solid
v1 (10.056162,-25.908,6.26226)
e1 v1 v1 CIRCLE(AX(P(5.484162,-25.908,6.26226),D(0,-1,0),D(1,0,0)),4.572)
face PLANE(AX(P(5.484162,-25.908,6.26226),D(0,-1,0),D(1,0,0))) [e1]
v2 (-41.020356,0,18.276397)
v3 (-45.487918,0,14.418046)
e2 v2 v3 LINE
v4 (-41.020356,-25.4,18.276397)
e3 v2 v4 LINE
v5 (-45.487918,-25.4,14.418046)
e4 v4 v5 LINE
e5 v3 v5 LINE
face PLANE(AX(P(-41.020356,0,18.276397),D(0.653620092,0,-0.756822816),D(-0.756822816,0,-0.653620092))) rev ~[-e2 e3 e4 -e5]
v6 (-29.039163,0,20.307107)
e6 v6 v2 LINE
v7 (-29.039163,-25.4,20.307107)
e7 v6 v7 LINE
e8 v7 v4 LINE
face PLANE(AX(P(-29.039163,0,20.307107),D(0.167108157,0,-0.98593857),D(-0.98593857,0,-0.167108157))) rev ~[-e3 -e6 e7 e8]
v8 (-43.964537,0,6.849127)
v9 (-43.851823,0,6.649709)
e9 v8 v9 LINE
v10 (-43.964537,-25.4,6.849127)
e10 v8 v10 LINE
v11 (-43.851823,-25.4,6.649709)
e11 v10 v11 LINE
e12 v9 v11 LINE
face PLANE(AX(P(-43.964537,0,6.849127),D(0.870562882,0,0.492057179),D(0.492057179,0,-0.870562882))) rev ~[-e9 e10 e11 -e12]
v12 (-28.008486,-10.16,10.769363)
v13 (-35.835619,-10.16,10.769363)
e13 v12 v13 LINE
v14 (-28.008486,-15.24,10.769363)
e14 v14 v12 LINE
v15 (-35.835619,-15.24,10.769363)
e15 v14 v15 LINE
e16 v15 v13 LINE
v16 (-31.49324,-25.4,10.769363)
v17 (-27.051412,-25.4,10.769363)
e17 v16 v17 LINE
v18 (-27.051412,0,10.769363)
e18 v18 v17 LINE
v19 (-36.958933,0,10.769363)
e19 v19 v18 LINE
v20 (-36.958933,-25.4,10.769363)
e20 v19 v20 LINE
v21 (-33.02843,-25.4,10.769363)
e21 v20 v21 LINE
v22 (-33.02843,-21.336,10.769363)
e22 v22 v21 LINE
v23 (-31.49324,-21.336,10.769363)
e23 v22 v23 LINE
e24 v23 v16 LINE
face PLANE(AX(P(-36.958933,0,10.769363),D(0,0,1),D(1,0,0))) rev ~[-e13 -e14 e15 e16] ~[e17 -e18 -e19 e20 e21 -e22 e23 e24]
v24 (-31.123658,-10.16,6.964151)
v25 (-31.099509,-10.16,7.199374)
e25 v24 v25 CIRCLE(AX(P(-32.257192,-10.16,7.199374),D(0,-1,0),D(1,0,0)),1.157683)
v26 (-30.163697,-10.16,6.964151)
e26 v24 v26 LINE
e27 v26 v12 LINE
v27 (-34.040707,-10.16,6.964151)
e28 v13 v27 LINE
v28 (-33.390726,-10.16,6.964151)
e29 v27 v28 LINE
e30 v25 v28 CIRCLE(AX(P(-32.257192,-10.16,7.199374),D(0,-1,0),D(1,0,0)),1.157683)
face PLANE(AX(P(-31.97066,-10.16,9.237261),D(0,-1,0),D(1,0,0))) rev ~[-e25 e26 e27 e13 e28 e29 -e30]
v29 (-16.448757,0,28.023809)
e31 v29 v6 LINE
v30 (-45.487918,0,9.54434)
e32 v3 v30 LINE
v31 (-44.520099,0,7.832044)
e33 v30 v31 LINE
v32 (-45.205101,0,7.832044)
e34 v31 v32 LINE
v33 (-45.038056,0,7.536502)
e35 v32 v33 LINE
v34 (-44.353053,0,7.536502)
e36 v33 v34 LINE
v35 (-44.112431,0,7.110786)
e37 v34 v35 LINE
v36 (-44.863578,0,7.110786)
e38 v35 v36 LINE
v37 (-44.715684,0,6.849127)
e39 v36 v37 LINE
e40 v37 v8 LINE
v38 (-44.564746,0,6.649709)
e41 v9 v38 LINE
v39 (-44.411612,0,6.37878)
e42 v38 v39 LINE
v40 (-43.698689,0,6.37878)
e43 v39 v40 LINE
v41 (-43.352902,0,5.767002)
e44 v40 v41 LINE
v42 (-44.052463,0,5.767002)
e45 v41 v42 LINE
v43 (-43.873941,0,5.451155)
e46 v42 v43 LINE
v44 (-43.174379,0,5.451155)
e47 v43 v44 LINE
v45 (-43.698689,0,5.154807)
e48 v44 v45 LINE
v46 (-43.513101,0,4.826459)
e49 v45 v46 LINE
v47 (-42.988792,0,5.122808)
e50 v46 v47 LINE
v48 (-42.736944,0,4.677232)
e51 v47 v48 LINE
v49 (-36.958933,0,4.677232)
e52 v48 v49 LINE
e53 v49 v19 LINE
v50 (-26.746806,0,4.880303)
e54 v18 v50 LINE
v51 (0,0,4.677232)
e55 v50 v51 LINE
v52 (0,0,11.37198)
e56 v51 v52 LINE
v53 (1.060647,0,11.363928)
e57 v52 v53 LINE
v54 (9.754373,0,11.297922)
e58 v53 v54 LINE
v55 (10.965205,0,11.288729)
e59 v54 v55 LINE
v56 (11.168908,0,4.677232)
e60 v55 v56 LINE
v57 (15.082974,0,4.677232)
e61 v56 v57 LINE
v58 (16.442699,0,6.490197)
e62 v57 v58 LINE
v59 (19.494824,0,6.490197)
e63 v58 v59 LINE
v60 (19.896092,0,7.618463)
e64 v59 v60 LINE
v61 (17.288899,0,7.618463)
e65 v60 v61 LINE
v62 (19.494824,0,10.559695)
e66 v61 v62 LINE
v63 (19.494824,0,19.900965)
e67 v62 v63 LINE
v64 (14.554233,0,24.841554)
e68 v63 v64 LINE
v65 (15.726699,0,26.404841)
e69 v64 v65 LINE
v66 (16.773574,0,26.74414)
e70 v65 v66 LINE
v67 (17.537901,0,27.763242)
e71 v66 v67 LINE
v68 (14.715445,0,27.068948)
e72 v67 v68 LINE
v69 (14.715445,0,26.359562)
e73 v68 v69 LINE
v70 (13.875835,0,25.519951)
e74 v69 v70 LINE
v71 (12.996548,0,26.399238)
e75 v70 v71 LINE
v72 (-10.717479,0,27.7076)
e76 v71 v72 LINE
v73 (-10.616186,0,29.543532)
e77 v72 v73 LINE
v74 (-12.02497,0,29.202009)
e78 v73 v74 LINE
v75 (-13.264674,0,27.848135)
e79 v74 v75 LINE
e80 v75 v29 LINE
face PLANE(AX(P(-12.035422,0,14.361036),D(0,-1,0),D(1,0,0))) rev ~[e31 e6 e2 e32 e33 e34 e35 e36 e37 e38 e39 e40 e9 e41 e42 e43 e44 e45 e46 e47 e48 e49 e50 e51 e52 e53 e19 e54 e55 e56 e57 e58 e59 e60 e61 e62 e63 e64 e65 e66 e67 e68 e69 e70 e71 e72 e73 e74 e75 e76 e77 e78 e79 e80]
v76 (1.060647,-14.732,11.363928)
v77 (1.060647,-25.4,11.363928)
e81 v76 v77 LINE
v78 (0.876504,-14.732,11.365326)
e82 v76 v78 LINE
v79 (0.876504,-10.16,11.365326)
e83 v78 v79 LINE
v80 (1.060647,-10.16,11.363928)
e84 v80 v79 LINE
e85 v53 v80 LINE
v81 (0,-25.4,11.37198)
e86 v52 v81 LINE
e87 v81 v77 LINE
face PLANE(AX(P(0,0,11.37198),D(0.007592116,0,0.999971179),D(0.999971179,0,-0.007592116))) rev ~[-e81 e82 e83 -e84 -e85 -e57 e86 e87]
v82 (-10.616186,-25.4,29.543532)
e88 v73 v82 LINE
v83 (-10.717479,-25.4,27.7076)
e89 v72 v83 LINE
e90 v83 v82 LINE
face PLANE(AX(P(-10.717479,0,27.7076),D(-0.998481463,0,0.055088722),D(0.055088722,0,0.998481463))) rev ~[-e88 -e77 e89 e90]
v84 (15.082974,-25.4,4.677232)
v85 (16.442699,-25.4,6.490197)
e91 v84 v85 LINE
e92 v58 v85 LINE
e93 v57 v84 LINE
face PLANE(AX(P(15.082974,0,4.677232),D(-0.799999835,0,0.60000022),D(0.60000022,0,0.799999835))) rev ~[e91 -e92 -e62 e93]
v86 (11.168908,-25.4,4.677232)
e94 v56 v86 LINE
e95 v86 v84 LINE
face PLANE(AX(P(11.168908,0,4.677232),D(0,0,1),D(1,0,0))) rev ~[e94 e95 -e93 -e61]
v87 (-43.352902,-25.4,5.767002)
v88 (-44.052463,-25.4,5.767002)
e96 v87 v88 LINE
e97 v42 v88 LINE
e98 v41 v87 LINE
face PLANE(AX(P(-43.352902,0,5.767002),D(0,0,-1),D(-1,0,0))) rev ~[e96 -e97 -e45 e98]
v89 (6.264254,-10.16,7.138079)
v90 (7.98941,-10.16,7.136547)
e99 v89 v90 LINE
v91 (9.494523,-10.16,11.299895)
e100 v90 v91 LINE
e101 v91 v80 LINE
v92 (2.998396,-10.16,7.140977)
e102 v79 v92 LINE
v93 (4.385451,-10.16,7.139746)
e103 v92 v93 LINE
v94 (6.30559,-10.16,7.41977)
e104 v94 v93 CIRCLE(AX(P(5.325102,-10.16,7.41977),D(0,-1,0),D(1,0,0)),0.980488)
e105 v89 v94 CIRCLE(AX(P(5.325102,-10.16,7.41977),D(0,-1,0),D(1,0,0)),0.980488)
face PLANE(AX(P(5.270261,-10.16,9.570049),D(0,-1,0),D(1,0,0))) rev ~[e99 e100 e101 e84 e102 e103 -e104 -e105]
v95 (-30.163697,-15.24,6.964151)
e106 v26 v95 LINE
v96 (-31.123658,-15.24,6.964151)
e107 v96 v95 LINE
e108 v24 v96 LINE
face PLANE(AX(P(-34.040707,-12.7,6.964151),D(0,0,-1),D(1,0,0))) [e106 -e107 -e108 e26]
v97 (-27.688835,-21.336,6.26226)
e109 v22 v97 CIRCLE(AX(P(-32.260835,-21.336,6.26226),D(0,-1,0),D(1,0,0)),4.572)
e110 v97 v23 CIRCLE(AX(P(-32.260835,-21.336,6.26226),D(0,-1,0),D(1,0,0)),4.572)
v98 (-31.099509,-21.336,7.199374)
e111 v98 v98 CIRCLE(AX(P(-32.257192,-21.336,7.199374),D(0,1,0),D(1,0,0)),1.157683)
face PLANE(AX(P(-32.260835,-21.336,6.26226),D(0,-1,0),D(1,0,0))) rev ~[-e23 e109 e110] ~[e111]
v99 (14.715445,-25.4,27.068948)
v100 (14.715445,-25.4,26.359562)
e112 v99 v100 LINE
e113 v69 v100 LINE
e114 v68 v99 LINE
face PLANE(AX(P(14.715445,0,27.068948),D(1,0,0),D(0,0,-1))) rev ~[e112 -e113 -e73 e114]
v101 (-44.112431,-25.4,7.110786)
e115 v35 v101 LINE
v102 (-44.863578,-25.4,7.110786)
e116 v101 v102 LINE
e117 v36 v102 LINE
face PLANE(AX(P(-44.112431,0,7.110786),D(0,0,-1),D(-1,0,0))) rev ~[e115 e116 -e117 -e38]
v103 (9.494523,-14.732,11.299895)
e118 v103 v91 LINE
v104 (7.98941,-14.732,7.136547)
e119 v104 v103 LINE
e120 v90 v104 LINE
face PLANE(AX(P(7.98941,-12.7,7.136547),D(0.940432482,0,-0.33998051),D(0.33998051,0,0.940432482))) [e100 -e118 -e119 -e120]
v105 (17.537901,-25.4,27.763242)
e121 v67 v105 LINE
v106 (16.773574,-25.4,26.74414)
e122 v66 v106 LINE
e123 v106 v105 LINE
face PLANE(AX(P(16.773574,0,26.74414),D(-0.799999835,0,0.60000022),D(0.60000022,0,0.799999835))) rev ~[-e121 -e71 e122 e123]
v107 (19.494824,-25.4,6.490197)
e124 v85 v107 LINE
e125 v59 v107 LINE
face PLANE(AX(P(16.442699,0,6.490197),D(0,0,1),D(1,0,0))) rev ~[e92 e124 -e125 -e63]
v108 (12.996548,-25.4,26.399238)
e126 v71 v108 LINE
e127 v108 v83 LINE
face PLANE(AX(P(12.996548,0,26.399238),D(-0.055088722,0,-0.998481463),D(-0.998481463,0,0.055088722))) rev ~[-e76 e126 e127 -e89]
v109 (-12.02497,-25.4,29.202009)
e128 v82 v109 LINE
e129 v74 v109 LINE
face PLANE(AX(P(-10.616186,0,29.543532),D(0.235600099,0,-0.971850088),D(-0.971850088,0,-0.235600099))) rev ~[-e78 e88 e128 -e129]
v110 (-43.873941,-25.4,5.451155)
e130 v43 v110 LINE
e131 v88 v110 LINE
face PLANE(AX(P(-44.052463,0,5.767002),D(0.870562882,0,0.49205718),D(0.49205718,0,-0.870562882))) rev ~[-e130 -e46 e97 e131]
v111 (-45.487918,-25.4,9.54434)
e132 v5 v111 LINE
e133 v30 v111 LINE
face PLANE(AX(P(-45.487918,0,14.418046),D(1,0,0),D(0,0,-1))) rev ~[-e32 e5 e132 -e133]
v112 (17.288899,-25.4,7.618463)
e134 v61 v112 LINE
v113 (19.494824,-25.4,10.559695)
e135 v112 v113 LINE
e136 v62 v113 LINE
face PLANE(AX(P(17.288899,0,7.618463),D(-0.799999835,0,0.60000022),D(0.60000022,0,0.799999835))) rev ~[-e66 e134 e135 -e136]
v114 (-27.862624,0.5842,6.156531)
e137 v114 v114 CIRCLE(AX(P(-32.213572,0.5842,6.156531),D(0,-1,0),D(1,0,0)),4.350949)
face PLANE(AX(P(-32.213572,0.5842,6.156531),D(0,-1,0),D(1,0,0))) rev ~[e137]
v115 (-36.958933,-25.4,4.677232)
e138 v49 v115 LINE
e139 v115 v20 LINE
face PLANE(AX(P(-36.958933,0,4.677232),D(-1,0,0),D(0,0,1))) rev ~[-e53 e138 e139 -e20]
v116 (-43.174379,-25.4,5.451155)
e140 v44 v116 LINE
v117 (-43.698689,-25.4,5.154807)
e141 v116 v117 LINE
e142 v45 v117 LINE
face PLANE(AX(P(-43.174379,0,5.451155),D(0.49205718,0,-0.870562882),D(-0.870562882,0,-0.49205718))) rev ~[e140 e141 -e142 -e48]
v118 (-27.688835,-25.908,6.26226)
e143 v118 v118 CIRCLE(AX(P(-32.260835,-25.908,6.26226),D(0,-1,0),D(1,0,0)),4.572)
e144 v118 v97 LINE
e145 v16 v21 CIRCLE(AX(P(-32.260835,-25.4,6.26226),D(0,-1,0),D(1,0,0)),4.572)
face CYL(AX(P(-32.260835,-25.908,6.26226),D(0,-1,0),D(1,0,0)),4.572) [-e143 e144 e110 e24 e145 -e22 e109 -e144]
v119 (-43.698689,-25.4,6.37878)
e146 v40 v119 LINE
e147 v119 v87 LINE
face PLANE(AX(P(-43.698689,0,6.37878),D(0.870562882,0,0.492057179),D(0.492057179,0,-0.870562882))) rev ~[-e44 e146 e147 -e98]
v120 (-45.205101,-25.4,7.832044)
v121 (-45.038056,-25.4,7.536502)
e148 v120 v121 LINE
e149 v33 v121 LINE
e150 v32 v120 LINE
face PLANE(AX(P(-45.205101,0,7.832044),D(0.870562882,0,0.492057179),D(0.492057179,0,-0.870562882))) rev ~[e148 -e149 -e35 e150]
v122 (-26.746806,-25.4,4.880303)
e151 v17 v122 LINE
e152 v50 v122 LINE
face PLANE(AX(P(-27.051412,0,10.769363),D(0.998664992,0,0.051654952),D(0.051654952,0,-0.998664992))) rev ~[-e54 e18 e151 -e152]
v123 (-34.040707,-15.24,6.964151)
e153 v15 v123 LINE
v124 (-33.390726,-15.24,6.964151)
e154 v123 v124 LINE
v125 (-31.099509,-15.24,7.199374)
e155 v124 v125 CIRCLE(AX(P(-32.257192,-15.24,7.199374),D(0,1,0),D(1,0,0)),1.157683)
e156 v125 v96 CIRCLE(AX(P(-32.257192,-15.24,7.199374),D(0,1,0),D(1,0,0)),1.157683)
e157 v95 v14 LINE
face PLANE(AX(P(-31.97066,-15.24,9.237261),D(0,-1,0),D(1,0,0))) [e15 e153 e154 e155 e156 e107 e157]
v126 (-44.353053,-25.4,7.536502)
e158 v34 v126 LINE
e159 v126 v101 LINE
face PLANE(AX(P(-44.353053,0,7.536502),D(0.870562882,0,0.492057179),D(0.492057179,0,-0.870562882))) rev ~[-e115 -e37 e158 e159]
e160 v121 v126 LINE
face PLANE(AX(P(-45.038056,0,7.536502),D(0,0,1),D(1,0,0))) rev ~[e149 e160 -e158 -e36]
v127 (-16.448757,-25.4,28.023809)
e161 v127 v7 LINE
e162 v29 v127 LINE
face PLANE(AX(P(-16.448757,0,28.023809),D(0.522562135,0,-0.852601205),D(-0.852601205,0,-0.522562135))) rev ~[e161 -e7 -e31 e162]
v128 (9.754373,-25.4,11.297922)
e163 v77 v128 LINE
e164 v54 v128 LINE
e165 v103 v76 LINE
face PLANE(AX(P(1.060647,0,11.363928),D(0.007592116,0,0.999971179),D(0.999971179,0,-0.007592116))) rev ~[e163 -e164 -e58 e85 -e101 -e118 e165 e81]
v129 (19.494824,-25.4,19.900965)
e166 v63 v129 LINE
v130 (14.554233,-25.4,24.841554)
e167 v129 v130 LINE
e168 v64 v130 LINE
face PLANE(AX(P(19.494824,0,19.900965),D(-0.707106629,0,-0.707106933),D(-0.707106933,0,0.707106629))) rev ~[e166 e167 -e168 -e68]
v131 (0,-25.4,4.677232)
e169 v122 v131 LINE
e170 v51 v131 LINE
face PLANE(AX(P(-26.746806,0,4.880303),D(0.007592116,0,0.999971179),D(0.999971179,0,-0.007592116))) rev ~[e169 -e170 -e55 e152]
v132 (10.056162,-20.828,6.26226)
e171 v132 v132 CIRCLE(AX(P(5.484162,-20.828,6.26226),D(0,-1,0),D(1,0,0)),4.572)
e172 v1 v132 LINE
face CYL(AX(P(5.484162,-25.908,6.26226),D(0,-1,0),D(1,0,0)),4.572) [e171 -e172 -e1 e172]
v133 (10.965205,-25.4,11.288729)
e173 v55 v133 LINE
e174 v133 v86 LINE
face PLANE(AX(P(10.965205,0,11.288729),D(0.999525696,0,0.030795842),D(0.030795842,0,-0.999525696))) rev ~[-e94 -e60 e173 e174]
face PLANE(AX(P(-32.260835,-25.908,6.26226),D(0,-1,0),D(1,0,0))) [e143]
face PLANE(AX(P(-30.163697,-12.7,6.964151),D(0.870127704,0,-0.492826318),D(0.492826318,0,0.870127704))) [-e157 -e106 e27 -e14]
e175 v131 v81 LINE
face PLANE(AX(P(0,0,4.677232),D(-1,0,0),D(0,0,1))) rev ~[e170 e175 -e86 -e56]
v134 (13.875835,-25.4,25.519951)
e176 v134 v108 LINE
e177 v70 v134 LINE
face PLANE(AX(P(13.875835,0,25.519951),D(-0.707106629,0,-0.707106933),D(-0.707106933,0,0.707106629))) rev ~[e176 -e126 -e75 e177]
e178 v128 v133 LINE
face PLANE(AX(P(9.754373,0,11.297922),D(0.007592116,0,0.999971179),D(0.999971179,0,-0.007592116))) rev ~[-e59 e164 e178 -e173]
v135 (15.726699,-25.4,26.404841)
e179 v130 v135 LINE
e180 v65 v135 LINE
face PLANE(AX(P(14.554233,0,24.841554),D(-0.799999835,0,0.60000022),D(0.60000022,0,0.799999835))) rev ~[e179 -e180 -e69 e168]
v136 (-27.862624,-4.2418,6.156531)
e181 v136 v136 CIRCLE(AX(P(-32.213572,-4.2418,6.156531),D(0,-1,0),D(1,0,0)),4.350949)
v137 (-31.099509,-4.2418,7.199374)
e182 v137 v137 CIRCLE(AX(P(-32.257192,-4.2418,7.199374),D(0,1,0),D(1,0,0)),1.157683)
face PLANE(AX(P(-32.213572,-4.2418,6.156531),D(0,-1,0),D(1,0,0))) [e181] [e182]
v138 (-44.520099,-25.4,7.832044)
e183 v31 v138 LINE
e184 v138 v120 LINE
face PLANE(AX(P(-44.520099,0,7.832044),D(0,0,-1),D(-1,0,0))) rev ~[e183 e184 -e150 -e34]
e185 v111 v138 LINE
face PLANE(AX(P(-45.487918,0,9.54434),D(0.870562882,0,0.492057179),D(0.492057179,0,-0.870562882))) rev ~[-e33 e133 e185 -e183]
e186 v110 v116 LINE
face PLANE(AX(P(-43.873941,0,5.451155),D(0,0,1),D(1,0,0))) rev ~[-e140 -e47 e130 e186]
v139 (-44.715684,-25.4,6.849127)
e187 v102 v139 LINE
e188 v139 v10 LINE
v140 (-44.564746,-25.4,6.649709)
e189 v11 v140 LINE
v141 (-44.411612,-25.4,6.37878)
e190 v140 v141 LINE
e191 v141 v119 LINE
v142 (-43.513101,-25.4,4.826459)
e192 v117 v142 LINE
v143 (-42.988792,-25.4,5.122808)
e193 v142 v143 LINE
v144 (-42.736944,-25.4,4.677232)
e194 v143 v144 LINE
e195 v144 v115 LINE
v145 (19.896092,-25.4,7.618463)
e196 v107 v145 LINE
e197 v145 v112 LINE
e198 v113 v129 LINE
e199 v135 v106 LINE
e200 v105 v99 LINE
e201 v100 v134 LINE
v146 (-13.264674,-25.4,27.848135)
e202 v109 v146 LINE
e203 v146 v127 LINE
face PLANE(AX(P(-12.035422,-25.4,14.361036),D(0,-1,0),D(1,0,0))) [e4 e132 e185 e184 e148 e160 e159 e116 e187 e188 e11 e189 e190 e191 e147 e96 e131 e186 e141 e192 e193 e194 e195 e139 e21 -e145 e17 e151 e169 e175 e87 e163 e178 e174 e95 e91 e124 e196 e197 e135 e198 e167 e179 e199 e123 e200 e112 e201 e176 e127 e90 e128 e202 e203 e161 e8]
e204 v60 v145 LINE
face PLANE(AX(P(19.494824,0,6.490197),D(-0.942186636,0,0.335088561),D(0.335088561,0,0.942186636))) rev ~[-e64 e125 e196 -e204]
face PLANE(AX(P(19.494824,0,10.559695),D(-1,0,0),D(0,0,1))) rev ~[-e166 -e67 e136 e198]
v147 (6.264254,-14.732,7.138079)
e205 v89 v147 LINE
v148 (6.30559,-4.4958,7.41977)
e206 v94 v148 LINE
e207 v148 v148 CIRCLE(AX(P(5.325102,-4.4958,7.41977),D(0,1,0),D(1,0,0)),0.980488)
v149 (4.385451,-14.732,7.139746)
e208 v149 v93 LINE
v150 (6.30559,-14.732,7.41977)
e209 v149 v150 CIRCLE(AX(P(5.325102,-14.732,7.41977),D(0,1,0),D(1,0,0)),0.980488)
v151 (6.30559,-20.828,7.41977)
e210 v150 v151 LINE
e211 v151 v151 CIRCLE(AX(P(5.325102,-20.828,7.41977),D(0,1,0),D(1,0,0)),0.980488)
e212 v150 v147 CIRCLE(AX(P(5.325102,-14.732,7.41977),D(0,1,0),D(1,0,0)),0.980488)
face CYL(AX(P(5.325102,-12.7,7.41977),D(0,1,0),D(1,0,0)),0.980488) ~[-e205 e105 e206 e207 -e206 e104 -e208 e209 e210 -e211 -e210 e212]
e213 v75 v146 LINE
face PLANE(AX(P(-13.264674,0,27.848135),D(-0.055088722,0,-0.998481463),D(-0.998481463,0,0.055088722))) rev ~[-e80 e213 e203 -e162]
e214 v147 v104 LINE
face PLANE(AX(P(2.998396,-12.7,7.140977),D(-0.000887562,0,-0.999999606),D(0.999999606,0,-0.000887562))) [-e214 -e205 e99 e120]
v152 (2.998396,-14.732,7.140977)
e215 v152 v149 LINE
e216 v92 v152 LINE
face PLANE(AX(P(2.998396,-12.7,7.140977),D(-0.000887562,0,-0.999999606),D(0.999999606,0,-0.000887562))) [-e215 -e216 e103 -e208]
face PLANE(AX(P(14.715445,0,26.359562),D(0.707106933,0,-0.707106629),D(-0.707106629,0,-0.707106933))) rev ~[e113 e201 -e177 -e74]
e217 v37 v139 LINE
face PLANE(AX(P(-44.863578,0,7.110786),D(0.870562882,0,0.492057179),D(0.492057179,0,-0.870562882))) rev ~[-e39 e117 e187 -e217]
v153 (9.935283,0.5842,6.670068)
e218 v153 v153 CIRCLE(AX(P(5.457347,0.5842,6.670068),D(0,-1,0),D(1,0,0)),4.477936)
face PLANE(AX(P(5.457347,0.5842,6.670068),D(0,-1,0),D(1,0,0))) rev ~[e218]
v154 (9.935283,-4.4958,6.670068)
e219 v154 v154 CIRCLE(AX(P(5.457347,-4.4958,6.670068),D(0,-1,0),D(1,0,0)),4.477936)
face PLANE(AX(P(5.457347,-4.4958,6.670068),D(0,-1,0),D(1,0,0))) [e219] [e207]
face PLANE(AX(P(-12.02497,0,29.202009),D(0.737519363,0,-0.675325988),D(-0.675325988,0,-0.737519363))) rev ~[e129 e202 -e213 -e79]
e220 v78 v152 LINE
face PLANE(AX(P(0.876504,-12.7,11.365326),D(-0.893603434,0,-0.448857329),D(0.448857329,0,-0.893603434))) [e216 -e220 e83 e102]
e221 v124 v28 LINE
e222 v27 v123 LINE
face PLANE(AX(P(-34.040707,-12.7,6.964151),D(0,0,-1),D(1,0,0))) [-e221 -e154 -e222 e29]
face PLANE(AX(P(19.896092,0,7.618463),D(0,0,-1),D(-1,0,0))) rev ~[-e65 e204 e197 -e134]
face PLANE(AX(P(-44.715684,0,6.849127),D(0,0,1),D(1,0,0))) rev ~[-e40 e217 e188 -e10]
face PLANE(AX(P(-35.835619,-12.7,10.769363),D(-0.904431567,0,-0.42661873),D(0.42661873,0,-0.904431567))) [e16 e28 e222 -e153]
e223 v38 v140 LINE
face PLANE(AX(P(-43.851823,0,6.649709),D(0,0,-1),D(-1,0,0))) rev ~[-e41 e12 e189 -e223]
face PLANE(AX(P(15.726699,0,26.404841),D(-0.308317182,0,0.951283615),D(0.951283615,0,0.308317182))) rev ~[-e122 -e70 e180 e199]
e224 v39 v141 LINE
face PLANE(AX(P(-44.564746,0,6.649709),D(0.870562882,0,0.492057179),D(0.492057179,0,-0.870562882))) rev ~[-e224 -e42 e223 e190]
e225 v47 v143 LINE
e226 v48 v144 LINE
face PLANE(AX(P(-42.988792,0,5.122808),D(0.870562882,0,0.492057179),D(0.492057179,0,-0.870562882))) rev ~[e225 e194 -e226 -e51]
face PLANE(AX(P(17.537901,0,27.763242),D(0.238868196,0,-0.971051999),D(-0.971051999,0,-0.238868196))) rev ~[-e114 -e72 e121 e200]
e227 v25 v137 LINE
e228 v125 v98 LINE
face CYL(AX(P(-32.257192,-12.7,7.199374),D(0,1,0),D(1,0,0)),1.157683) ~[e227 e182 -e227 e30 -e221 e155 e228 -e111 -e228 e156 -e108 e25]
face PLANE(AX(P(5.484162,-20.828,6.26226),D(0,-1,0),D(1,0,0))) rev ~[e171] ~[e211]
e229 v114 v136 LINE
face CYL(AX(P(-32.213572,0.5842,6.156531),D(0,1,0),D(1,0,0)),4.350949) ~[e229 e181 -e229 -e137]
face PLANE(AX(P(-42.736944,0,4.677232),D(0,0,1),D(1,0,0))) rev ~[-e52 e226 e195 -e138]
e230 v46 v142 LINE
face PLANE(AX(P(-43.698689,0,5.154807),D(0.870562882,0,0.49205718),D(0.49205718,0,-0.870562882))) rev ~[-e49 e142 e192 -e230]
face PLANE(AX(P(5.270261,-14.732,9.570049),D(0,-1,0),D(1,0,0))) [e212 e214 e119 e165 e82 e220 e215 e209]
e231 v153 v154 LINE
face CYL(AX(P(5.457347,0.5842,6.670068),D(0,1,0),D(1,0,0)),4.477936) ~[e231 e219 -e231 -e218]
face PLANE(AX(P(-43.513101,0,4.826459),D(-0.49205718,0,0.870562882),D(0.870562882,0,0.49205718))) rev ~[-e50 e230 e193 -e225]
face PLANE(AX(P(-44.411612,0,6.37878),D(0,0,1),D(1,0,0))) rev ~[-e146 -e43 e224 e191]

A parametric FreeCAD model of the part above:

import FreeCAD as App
import Part
import Sketcher

V = App.Vector
Q = App.Units.Quantity


def add_polygon(sketch, points):
    """Adds a closed chain of lines whose ends are joined by coincident constraints."""
    first, n = sketch.GeometryCount, len(points)
    for a, b in zip(points, points[1:] + points[:1]):
        sketch.addGeometry(Part.LineSegment(App.Vector(*a, 0), App.Vector(*b, 0)), False)
    for i in range(n):
        sketch.addConstraint(Sketcher.Constraint("Coincident", first + i, 2, first + (i + 1) % n, 1))

doc = App.newDocument("Part")
params = doc.addObject("Spreadsheet::Sheet", "Params")
for row, (alias, value) in enumerate([
    ("pad1_length", "1 in"),
    ("pad2_length", "0.1 in"),
    ("pad2_length2", "0.1 in"),
    ("pad3_length", "0.08 in"),
    ("pad3_length2", "0.1 in"),
    ("pad4_length", "0.5 in"),
    ("pad4_length2", "0.5 in"),
    ("pad5_length", "0.5 in"),
    ("pad5_length2", "0.5 in"),
    ("sketch6_diameter", "0.36 in"),
    ("pad6_length", "0.18 in"),
    ("sketch7_diameter", "0.36 in"),
    ("pad7_length", "0.2 in"),
    ("pad8_length", "0.2 in"),
    ("pad9_length", "0.19 in"),
    ("pad10_length", "1 in"),
    ("pad11_length", "1 in"),
], start=1):
    params.set(f"A{row}", alias)
    params.set(f"B{row}", "=" + value)
    params.setAlias(f"B{row}", alias)

body = doc.addObject("PartDesign::Body", "Body")

# Sketch on XZ plane
sketch1 = body.newObject("Sketcher::SketchObject", "Sketch")
sketch1.AttachmentSupport = (doc.getObject("XZ_Plane"), [""])
sketch1.MapMode = "FlatFace"
add_polygon(sketch1, [(-42.736944, 4.677232), (-36.958933, 4.677232), (-36.958933, 10.769363), (-27.051412, 10.769363), (-26.746806, 4.880303), (0, 4.677232), (0, 11.37198), (1.060647, 11.363928), (9.754373, 11.297922), (10.965205, 11.288729), (11.168908, 4.677232), (15.082974, 4.677232), (16.442699, 6.490197), (19.494824, 6.490197), (19.896092, 7.618463), (17.288899, 7.618463), (19.494824, 10.559695), (19.494824, 19.900965), (14.554233, 24.841554), (15.726699, 26.404841), (16.773574, 26.74414), (17.537901, 27.763242), (14.715445, 27.068948), (14.715445, 26.359562), (13.875835, 25.519951), (12.996548, 26.399238), (-10.717479, 27.7076), (-10.616186, 29.543532), (-12.02497, 29.202009), (-13.264674, 27.848135), (-16.448757, 28.023809), (-29.039163, 20.307107), (-41.020356, 18.276397), (-45.487918, 14.418046), (-45.487918, 9.54434), (-44.520099, 7.832044), (-45.205101, 7.832044), (-45.038056, 7.536502), (-44.353053, 7.536502), (-44.112431, 7.110786), (-44.863578, 7.110786), (-44.715684, 6.849127), (-43.964537, 6.849127), (-43.851823, 6.649709), (-44.564746, 6.649709), (-44.411612, 6.37878), (-43.698689, 6.37878), (-43.352902, 5.767002), (-44.052463, 5.767002), (-43.873941, 5.451155), (-43.174379, 5.451155), (-43.698689, 5.154807), (-43.513101, 4.826459), (-42.988792, 5.122808)])  # lines 0-53
sketch1.addConstraint([
    Sketcher.Constraint("Horizontal", 0),
    Sketcher.Constraint("Vertical", 1),
    Sketcher.Constraint("Horizontal", 2),
    Sketcher.Constraint("Vertical", 5),
    Sketcher.Constraint("Horizontal", 10),
    Sketcher.Constraint("Horizontal", 12),
    Sketcher.Constraint("Horizontal", 14),
    Sketcher.Constraint("Vertical", 16),
    Sketcher.Constraint("Vertical", 22),
    Sketcher.Constraint("Vertical", 33),
    Sketcher.Constraint("Horizontal", 35),
    Sketcher.Constraint("Horizontal", 37),
    Sketcher.Constraint("Horizontal", 39),
    Sketcher.Constraint("Horizontal", 41),
    Sketcher.Constraint("Horizontal", 43),
    Sketcher.Constraint("Horizontal", 45),
    Sketcher.Constraint("Horizontal", 47),
    Sketcher.Constraint("Horizontal", 49),
    Sketcher.Constraint("PointOnObject", 4, 2, -2),
    Sketcher.Constraint("DistanceY", -1, 1, 7, 2, Q("0.4448001 in")),
    Sketcher.Constraint("Distance", 24, 1.243499),
    Sketcher.Constraint("DistanceX", 0, 1, 0, 2, 5.778012),
    Sketcher.Constraint("DistanceX", 2, 1, 2, 2, 9.907521),
    Sketcher.Constraint("DistanceX", 47, 2, 47, 1, 0.699562),
    Sketcher.Constraint("DistanceX", 49, 1, 49, 2, 0.699562),
    Sketcher.Constraint("DistanceY", 1, 1, 1, 2, 6.092132),
    Sketcher.Constraint("DistanceY", 5, 1, 5, 2, 6.694749),
    Sketcher.Constraint("DistanceY", 16, 1, 16, 2, 9.34127),
    Sketcher.Constraint("DistanceX", -1, 1, 11, 2, 16.442699),
    Sketcher.Constraint("DistanceX", -1, 1, 14, 2, 17.288899),
    Sketcher.Constraint("DistanceX", -1, 1, 18, 2, 15.726699),
    Sketcher.Constraint("DistanceX", -1, 1, 20, 2, 17.537901),
    Sketcher.Constraint("DistanceY", -1, 1, 25, 2, 27.7076),
    Sketcher.Constraint("DistanceX", 34, 2, -1, 1, 44.520099),
    Sketcher.Constraint("DistanceX", 35, 2, -1, 1, 45.205101),
    Sketcher.Constraint("DistanceY", -1, 1, 36, 2, 7.536502),
    Sketcher.Constraint("DistanceX", 46, 2, -1, 1, 43.352902),
    Sketcher.Constraint("DistanceX", 51, 2, -1, 1, 43.513101),
    Sketcher.Constraint("DistanceY", 8, 2, 6, 2, 0.075199),
    Sketcher.Constraint("DistanceX", 7, 2, 10, 2, 5.328602),
    Sketcher.Constraint("DistanceY", 13, 2, 16, 2, 12.282501),
    Sketcher.Constraint("DistanceY", 18, 2, 19, 2, 0.339299),
    Sketcher.Constraint("DistanceY", 19, 2, 20, 2, 1.019102),
    Sketcher.Constraint("DistanceY", 29, 2, 27, 2, 1.178199),
    Sketcher.Constraint("DistanceY", 34, 2, 32, 2, 6.586002),
    Sketcher.Constraint("DistanceY", 52, 2, 50, 2, 0.031999),
    Sketcher.Constraint("Distance", 15, 3.67654),
    Sketcher.Constraint("Distance", 17, 6.98705),
    Sketcher.Constraint("Distance", 18, 1.954109),
    Sketcher.Constraint("Distance", 27, 1.44959),
    Sketcher.Constraint("Distance", 31, 12.152068),
    Sketcher.Constraint("Distance", 32, 5.903049),
    Sketcher.Constraint("Distance", 42, 0.229068),
    Sketcher.Constraint("Distance", 44, 0.311212),
    Sketcher.Constraint("DistanceX", 10, 1, 10, 2, 3.914066),
    Sketcher.Constraint("DistanceX", 12, 1, 12, 2, 3.052125),
    Sketcher.Constraint("DistanceX", 14, 2, 14, 1, 2.607193),
    Sketcher.Constraint("DistanceX", 37, 1, 37, 2, 0.685003),
    Sketcher.Constraint("DistanceX", 39, 2, 39, 1, 0.751147),
    Sketcher.Constraint("DistanceX", 41, 1, 41, 2, 0.751147),
    Sketcher.Constraint("DistanceX", 43, 2, 43, 1, 0.712924),
    Sketcher.Constraint("DistanceX", 45, 1, 45, 2, 0.712924),
    Sketcher.Constraint("DistanceY", 22, 2, 22, 1, 0.709387),
    Sketcher.Constraint("DistanceY", 33, 2, 33, 1, 4.873706),
    Sketcher.Constraint("DistanceY", -1, 1, 0, 2, 4.677232),
    Sketcher.Constraint("DistanceX", 2, 2, -1, 1, 27.051412),
    Sketcher.Constraint("DistanceY", -1, 1, 4, 2, 4.677232),
    Sketcher.Constraint("DistanceY", -1, 1, 8, 2, 11.288729),
    Sketcher.Constraint("DistanceX", -1, 1, 9, 2, 11.168908),
    Sketcher.Constraint("DistanceY", -1, 1, 9, 2, 4.677232),
    Sketcher.Constraint("DistanceY", -1, 1, 18, 2, 26.404841),
    Sketcher.Constraint("DistanceY", -1, 1, 21, 2, 27.068948),
    Sketcher.Constraint("DistanceY", -1, 1, 23, 2, 25.519951),
    Sketcher.Constraint("DistanceY", -1, 1, 24, 2, 26.399238),
    Sketcher.Constraint("DistanceX", 25, 2, -1, 1, 10.717479),
    Sketcher.Constraint("DistanceX", 27, 2, -1, 1, 12.02497),
    Sketcher.Constraint("DistanceY", -1, 1, 27, 2, 29.202009),
    Sketcher.Constraint("DistanceY", -1, 1, 33, 2, 9.54434),
    Sketcher.Constraint("DistanceX", 38, 2, -1, 1, 44.112431),
    Sketcher.Constraint("DistanceY", -1, 1, 42, 2, 6.649709),
    Sketcher.Constraint("DistanceY", -1, 1, 44, 2, 6.37878),
    Sketcher.Constraint("DistanceX", 45, 2, -1, 1, 43.698689),
    Sketcher.Constraint("DistanceX", 48, 2, -1, 1, 43.873941),
    Sketcher.Constraint("DistanceX", 50, 2, -1, 1, 43.698689),
    Sketcher.Constraint("DistanceY", -1, 1, 51, 2, 4.826459),
    Sketcher.Constraint("DistanceX", 52, 2, -1, 1, 42.988792),
    Sketcher.Constraint("DistanceY", 3, 2, 2, 2, 5.889061),
    Sketcher.Constraint("DistanceX", 2, 2, 6, 2, 28.112059),
    Sketcher.Constraint("DistanceX", 3, 2, 7, 2, 36.501178),
    Sketcher.Constraint("DistanceX", 8, 2, 10, 2, 4.117769),
    Sketcher.Constraint("DistanceY", 11, 2, 8, 2, 4.798532),
    Sketcher.Constraint("DistanceY", 10, 2, 13, 2, 2.941231),
    Sketcher.Constraint("DistanceX", 17, 2, 19, 2, 2.219342),
    Sketcher.Constraint("DistanceX", 21, 2, 19, 2, 2.05813),
    Sketcher.Constraint("DistanceX", 23, 2, 22, 2, 0.83961),
    Sketcher.Constraint("DistanceY", 25, 2, 26, 2, 1.835932),
    Sketcher.Constraint("DistanceX", 28, 2, 6, 2, 14.325321),
    Sketcher.Constraint("DistanceX", 29, 2, 26, 2, 5.832571),
    Sketcher.Constraint("DistanceX", 30, 2, 2, 2, 1.987752),
    Sketcher.Constraint("DistanceY", 30, 2, 28, 2, 7.541028),
    Sketcher.Constraint("DistanceY", 31, 2, 30, 2, 2.03071),
    Sketcher.Constraint("DistanceX", 32, 2, 31, 2, 4.467562),
    Sketcher.Constraint("DistanceX", 35, 2, 37, 2, 0.852048),
    Sketcher.Constraint("DistanceY", 38, 2, 34, 2, 0.721258),
    Sketcher.Constraint("DistanceY", 40, 2, 39, 2, 0.261659),
    Sketcher.Constraint("DistanceY", 50, 2, 48, 2, 0.296349),
    Sketcher.Constraint("DistanceY", 51, 2, 52, 2, 0.296349),
    Sketcher.Constraint("DistanceY", 53, 2, 46, 2, 1.089771),
])
pad1 = body.newObject("PartDesign::Pad", "Pad")
pad1.Profile = sketch1
pad1.setExpression("Length", "Params.pad1_length")

# Sketch on XZ plane
sketch2 = body.newObject("Sketcher::SketchObject", "Sketch001")
sketch2.AttachmentSupport = (doc.getObject("XZ_Plane"), [""])
sketch2.MapMode = "FlatFace"
sketch2.AttachmentOffset = App.Placement(V(0, 0, 0.5 * 25.4), App.Rotation())
add_polygon(sketch2, [(-28, 10.8), (-35.8, 10.8), (-34, 7), (-30.2, 7)])  # lines 0-3
sketch2.addConstraint([
    Sketcher.Constraint("Horizontal", 0),
    Sketcher.Constraint("Horizontal", 2),
    Sketcher.Constraint("DistanceX", 2, 1, 2, 2, 3.87701),
    Sketcher.Constraint("DistanceX", 0, 2, 0, 1, 7.827133),
    Sketcher.Constraint("DistanceX", 0, 2, -1, 1, 35.835619),
    Sketcher.Constraint("DistanceY", -1, 1, 1, 2, 6.964151),
    Sketcher.Constraint("DistanceX", 0, 2, 1, 2, 1.794912),
    Sketcher.Constraint("Distance", 1, 4.207298),
])
pad2 = body.newObject("PartDesign::Pad", "Pad001")
pad2.Profile = sketch2
pad2.Type = "TwoLengths"
pad2.setExpression("Length", "Params.pad2_length")
pad2.setExpression("Length2", "Params.pad2_length2")

# Sketch on XZ plane
sketch3 = body.newObject("Sketcher::SketchObject", "Sketch002")
sketch3.AttachmentSupport = (doc.getObject("XZ_Plane"), [""])
sketch3.MapMode = "FlatFace"
sketch3.AttachmentOffset = App.Placement(V(0, 0, 0.5 * 25.4), App.Rotation())
add_polygon(sketch3, [(9.5, 11.3), (0.9, 11.4), (3, 7.1), (8, 7.1)])  # lines 0-3
sketch3.addConstraint([
    Sketcher.Constraint("DistanceX", -1, 1, 3, 2, Q("0.3738001 in")),
    Sketcher.Constraint("Distance", 1, 4.727319),
    Sketcher.Constraint("DistanceX", -1, 1, 2, 2, 7.98941),
    Sketcher.Constraint("DistanceX", 0, 2, 1, 2, 2.121892),
    Sketcher.Constraint("DistanceY", 2, 2, 1, 2, 0.00443),
    Sketcher.Constraint("DistanceX", 0, 2, 3, 2, 8.618019),
    Sketcher.Constraint("DistanceY", 3, 2, 0, 2, 0.065431),
    Sketcher.Constraint("DistanceY", -1, 1, 0, 2, 11.365326),
])
pad3 = body.newObject("PartDesign::Pad", "Pad002")
pad3.Profile = sketch3
pad3.Type = "TwoLengths"
pad3.setExpression("Length", "Params.pad3_length")
pad3.setExpression("Length2", "Params.pad3_length2")

# Sketch on XZ plane
sketch4 = body.newObject("Sketcher::SketchObject", "Sketch003")
sketch4.AttachmentSupport = (doc.getObject("XZ_Plane"), [""])
sketch4.MapMode = "FlatFace"
sketch4.AttachmentOffset = App.Placement(V(0, 0, 0.5 * 25.4), App.Rotation())
sketch4.addGeometry(Part.Circle(V(-32.3, 7.2, 0), V(0, 0, 1), 1.2), False)
sketch4.addConstraint([
    Sketcher.Constraint("Diameter", 0, 2.315365),
    Sketcher.Constraint("DistanceX", 0, 3, -1, 1, 32.257192),
    Sketcher.Constraint("DistanceY", -1, 1, 0, 3, 7.199374),
])
pad4 = body.newObject("PartDesign::Pad", "Pad003")
pad4.Profile = sketch4
pad4.Type = "TwoLengths"
pad4.setExpression("Length", "Params.pad4_length")
pad4.setExpression("Length2", "Params.pad4_length2")

# Sketch on XZ plane
sketch5 = body.newObject("Sketcher::SketchObject", "Sketch004")
sketch5.AttachmentSupport = (doc.getObject("XZ_Plane"), [""])
sketch5.MapMode = "FlatFace"
sketch5.AttachmentOffset = App.Placement(V(0, 0, 0.5 * 25.4), App.Rotation())
sketch5.addGeometry(Part.Circle(V(5.3, 7.4, 0), V(0, 0, 1), 1), False)
sketch5.addConstraint([
    Sketcher.Constraint("Diameter", 0, 1.960976),
    Sketcher.Constraint("DistanceY", -1, 1, 0, 3, 7.41977),
    Sketcher.Constraint("DistanceX", -1, 1, 0, 3, 5.325102),
])
pad5 = body.newObject("PartDesign::Pad", "Pad004")
pad5.Profile = sketch5
pad5.Type = "TwoLengths"
pad5.setExpression("Length", "Params.pad5_length")
pad5.setExpression("Length2", "Params.pad5_length2")

# Sketch on XZ plane
sketch6 = body.newObject("Sketcher::SketchObject", "Sketch005")
sketch6.AttachmentSupport = (doc.getObject("XZ_Plane"), [""])
sketch6.MapMode = "FlatFace"
sketch6.AttachmentOffset = App.Placement(V(0, 0, 1.02 * 25.4), App.Rotation())
sketch6.addGeometry(Part.Circle(V(-32.3, 6.3, 0), V(0, 0, 1), 4.6), False)
sketch6.addConstraint([
    Sketcher.Constraint("Diameter", 0, Q("0.36 in")),
    Sketcher.Constraint("DistanceY", -1, 1, 0, 3, 6.26226),
    Sketcher.Constraint("DistanceX", 0, 3, -1, 1, 32.260835),
])
sketch6.setExpression("Constraints[0]", "Params.sketch6_diameter")
pad6 = body.newObject("PartDesign::Pad", "Pad005")
pad6.Profile = sketch6
pad6.setExpression("Length", "Params.pad6_length")
pad6.Reversed = True

# Sketch on XZ plane
sketch7 = body.newObject("Sketcher::SketchObject", "Sketch006")
sketch7.AttachmentSupport = (doc.getObject("XZ_Plane"), [""])
sketch7.MapMode = "FlatFace"
sketch7.AttachmentOffset = App.Placement(V(0, 0, 1.02 * 25.4), App.Rotation())
sketch7.addGeometry(Part.Circle(V(5.5, 6.3, 0), V(0, 0, 1), 4.6), False)
sketch7.addConstraint([
    Sketcher.Constraint("Diameter", 0, Q("0.36 in")),
    Sketcher.Constraint("DistanceY", -1, 1, 0, 3, 6.26226),
    Sketcher.Constraint("DistanceX", -1, 1, 0, 3, 5.484162),
])
sketch7.setExpression("Constraints[0]", "Params.sketch7_diameter")
pad7 = body.newObject("PartDesign::Pad", "Pad006")
pad7.Profile = sketch7
pad7.setExpression("Length", "Params.pad7_length")
pad7.Reversed = True

# Sketch on XZ plane
sketch8 = body.newObject("Sketcher::SketchObject", "Sketch007")
sketch8.AttachmentSupport = (doc.getObject("XZ_Plane"), [""])
sketch8.MapMode = "FlatFace"
sketch8.AttachmentOffset = App.Placement(V(0, 0, -0.023 * 25.4), App.Rotation())
sketch8.addGeometry(Part.Circle(V(5.5, 6.7, 0), V(0, 0, 1), 4.5), False)
sketch8.addConstraint([
    Sketcher.Constraint("Diameter", 0, 8.955871),
    Sketcher.Constraint("DistanceX", -1, 1, 0, 3, 5.457347),
    Sketcher.Constraint("DistanceY", -1, 1, 0, 3, 6.670068),
])
pad8 = body.newObject("PartDesign::Pad", "Pad007")
pad8.Profile = sketch8
pad8.setExpression("Length", "Params.pad8_length")

# Sketch on XZ plane
sketch9 = body.newObject("Sketcher::SketchObject", "Sketch008")
sketch9.AttachmentSupport = (doc.getObject("XZ_Plane"), [""])
sketch9.MapMode = "FlatFace"
sketch9.AttachmentOffset = App.Placement(V(0, 0, -0.023 * 25.4), App.Rotation())
sketch9.addGeometry(Part.Circle(V(-32.2, 6.2, 0), V(0, 0, 1), 4.4), False)
sketch9.addConstraint([
    Sketcher.Constraint("Diameter", 0, 8.701897),
    Sketcher.Constraint("DistanceY", -1, 1, 0, 3, 6.156531),
    Sketcher.Constraint("DistanceX", 0, 3, -1, 1, 32.213572),
])
pad9 = body.newObject("PartDesign::Pad", "Pad008")
pad9.Profile = sketch9
pad9.setExpression("Length", "Params.pad9_length")

# Sketch on XZ plane
sketch10 = body.newObject("Sketcher::SketchObject", "Sketch009")
sketch10.AttachmentSupport = (doc.getObject("XZ_Plane"), [""])
sketch10.MapMode = "FlatFace"
add_polygon(sketch10, [(-42.736944, 4.677232), (-36.958933, 4.677232), (-36.958933, 10.769363), (-27.051412, 10.769363), (-26.746806, 4.880303), (0, 4.677232), (0, 11.37198), (1.060647, 11.363928), (9.754373, 11.297922), (10.965205, 11.288729), (11.168908, 4.677232), (15.082974, 4.677232), (16.442699, 6.490197), (19.494824, 6.490197), (19.896092, 7.618463), (17.288899, 7.618463), (19.494824, 10.559695), (19.494824, 19.900965), (14.554233, 24.841554), (15.726699, 26.404841), (16.773574, 26.74414), (17.537901, 27.763242), (14.715445, 27.068948), (14.715445, 26.359562), (13.875835, 25.519951), (12.996548, 26.399238), (-10.717479, 27.7076), (-10.616186, 29.543532), (-12.02497, 29.202009), (-13.264674, 27.848135), (-16.448757, 28.023809), (-29.039163, 20.307107), (-41.020356, 18.276397), (-45.487918, 14.418046), (-45.487918, 9.54434), (-44.520099, 7.832044), (-45.205101, 7.832044), (-45.038056, 7.536502), (-44.353053, 7.536502), (-44.112431, 7.110786), (-44.863578, 7.110786), (-44.715684, 6.849127), (-43.964537, 6.849127), (-43.851823, 6.649709), (-44.564746, 6.649709), (-44.411612, 6.37878), (-43.698689, 6.37878), (-43.352902, 5.767002), (-44.052463, 5.767002), (-43.873941, 5.451155), (-43.174379, 5.451155), (-43.698689, 5.154807), (-43.513101, 4.826459), (-42.988792, 5.122808)])  # lines 0-53
sketch10.addConstraint([
    Sketcher.Constraint("Horizontal", 0),
    Sketcher.Constraint("Vertical", 1),
    Sketcher.Constraint("Horizontal", 2),
    Sketcher.Constraint("Vertical", 5),
    Sketcher.Constraint("Horizontal", 10),
    Sketcher.Constraint("Horizontal", 12),
    Sketcher.Constraint("Horizontal", 14),
    Sketcher.Constraint("Vertical", 16),
    Sketcher.Constraint("Vertical", 22),
    Sketcher.Constraint("Vertical", 33),
    Sketcher.Constraint("Horizontal", 35),
    Sketcher.Constraint("Horizontal", 37),
    Sketcher.Constraint("Horizontal", 39),
    Sketcher.Constraint("Horizontal", 41),
    Sketcher.Constraint("Horizontal", 43),
    Sketcher.Constraint("Horizontal", 45),
    Sketcher.Constraint("Horizontal", 47),
    Sketcher.Constraint("Horizontal", 49),
    Sketcher.Constraint("PointOnObject", 4, 2, -2),
    Sketcher.Constraint("DistanceY", -1, 1, 7, 2, Q("0.4448001 in")),
    Sketcher.Constraint("Distance", 24, 1.243499),
    Sketcher.Constraint("DistanceX", 0, 1, 0, 2, 5.778012),
    Sketcher.Constraint("DistanceX", 2, 1, 2, 2, 9.907521),
    Sketcher.Constraint("DistanceX", 47, 2, 47, 1, 0.699562),
    Sketcher.Constraint("DistanceX", 49, 1, 49, 2, 0.699562),
    Sketcher.Constraint("DistanceY", 1, 1, 1, 2, 6.092132),
    Sketcher.Constraint("DistanceY", 5, 1, 5, 2, 6.694749),
    Sketcher.Constraint("DistanceY", 16, 1, 16, 2, 9.34127),
    Sketcher.Constraint("DistanceX", -1, 1, 11, 2, 16.442699),
    Sketcher.Constraint("DistanceX", -1, 1, 14, 2, 17.288899),
    Sketcher.Constraint("DistanceX", -1, 1, 18, 2, 15.726699),
    Sketcher.Constraint("DistanceX", -1, 1, 20, 2, 17.537901),
    Sketcher.Constraint("DistanceY", -1, 1, 25, 2, 27.7076),
    Sketcher.Constraint("DistanceX", 34, 2, -1, 1, 44.520099),
    Sketcher.Constraint("DistanceX", 35, 2, -1, 1, 45.205101),
    Sketcher.Constraint("DistanceY", -1, 1, 36, 2, 7.536502),
    Sketcher.Constraint("DistanceX", 46, 2, -1, 1, 43.352902),
    Sketcher.Constraint("DistanceX", 51, 2, -1, 1, 43.513101),
    Sketcher.Constraint("DistanceY", 8, 2, 6, 2, 0.075199),
    Sketcher.Constraint("DistanceX", 7, 2, 10, 2, 5.328602),
    Sketcher.Constraint("DistanceY", 13, 2, 16, 2, 12.282501),
    Sketcher.Constraint("DistanceY", 18, 2, 19, 2, 0.339299),
    Sketcher.Constraint("DistanceY", 19, 2, 20, 2, 1.019102),
    Sketcher.Constraint("DistanceY", 29, 2, 27, 2, 1.178199),
    Sketcher.Constraint("DistanceY", 34, 2, 32, 2, 6.586002),
    Sketcher.Constraint("DistanceY", 52, 2, 50, 2, 0.031999),
    Sketcher.Constraint("Distance", 15, 3.67654),
    Sketcher.Constraint("Distance", 17, 6.98705),
    Sketcher.Constraint("Distance", 18, 1.954109),
    Sketcher.Constraint("Distance", 27, 1.44959),
    Sketcher.Constraint("Distance", 31, 12.152068),
    Sketcher.Constraint("Distance", 32, 5.903049),
    Sketcher.Constraint("Distance", 42, 0.229068),
    Sketcher.Constraint("Distance", 44, 0.311212),
    Sketcher.Constraint("DistanceX", 10, 1, 10, 2, 3.914066),
    Sketcher.Constraint("DistanceX", 12, 1, 12, 2, 3.052125),
    Sketcher.Constraint("DistanceX", 14, 2, 14, 1, 2.607193),
    Sketcher.Constraint("DistanceX", 37, 1, 37, 2, 0.685003),
    Sketcher.Constraint("DistanceX", 39, 2, 39, 1, 0.751147),
    Sketcher.Constraint("DistanceX", 41, 1, 41, 2, 0.751147),
    Sketcher.Constraint("DistanceX", 43, 2, 43, 1, 0.712924),
    Sketcher.Constraint("DistanceX", 45, 1, 45, 2, 0.712924),
    Sketcher.Constraint("DistanceY", 22, 2, 22, 1, 0.709387),
    Sketcher.Constraint("DistanceY", 33, 2, 33, 1, 4.873706),
    Sketcher.Constraint("DistanceY", -1, 1, 0, 2, 4.677232),
    Sketcher.Constraint("DistanceX", 2, 2, -1, 1, 27.051412),
    Sketcher.Constraint("DistanceY", -1, 1, 4, 2, 4.677232),
    Sketcher.Constraint("DistanceY", -1, 1, 8, 2, 11.288729),
    Sketcher.Constraint("DistanceX", -1, 1, 9, 2, 11.168908),
    Sketcher.Constraint("DistanceY", -1, 1, 9, 2, 4.677232),
    Sketcher.Constraint("DistanceY", -1, 1, 18, 2, 26.404841),
    Sketcher.Constraint("DistanceY", -1, 1, 21, 2, 27.068948),
    Sketcher.Constraint("DistanceY", -1, 1, 23, 2, 25.519951),
    Sketcher.Constraint("DistanceY", -1, 1, 24, 2, 26.399238),
    Sketcher.Constraint("DistanceX", 25, 2, -1, 1, 10.717479),
    Sketcher.Constraint("DistanceX", 27, 2, -1, 1, 12.02497),
    Sketcher.Constraint("DistanceY", -1, 1, 27, 2, 29.202009),
    Sketcher.Constraint("DistanceY", -1, 1, 33, 2, 9.54434),
    Sketcher.Constraint("DistanceX", 38, 2, -1, 1, 44.112431),
    Sketcher.Constraint("DistanceY", -1, 1, 42, 2, 6.649709),
    Sketcher.Constraint("DistanceY", -1, 1, 44, 2, 6.37878),
    Sketcher.Constraint("DistanceX", 45, 2, -1, 1, 43.698689),
    Sketcher.Constraint("DistanceX", 48, 2, -1, 1, 43.873941),
    Sketcher.Constraint("DistanceX", 50, 2, -1, 1, 43.698689),
    Sketcher.Constraint("DistanceY", -1, 1, 51, 2, 4.826459),
    Sketcher.Constraint("DistanceX", 52, 2, -1, 1, 42.988792),
    Sketcher.Constraint("DistanceY", 3, 2, 2, 2, 5.889061),
    Sketcher.Constraint("DistanceX", 2, 2, 6, 2, 28.112059),
    Sketcher.Constraint("DistanceX", 3, 2, 7, 2, 36.501178),
    Sketcher.Constraint("DistanceX", 8, 2, 10, 2, 4.117769),
    Sketcher.Constraint("DistanceY", 11, 2, 8, 2, 4.798532),
    Sketcher.Constraint("DistanceY", 10, 2, 13, 2, 2.941231),
    Sketcher.Constraint("DistanceX", 17, 2, 19, 2, 2.219342),
    Sketcher.Constraint("DistanceX", 21, 2, 19, 2, 2.05813),
    Sketcher.Constraint("DistanceX", 23, 2, 22, 2, 0.83961),
    Sketcher.Constraint("DistanceY", 25, 2, 26, 2, 1.835932),
    Sketcher.Constraint("DistanceX", 28, 2, 6, 2, 14.325321),
    Sketcher.Constraint("DistanceX", 29, 2, 26, 2, 5.832571),
    Sketcher.Constraint("DistanceX", 30, 2, 2, 2, 1.987752),
    Sketcher.Constraint("DistanceY", 30, 2, 28, 2, 7.541028),
    Sketcher.Constraint("DistanceY", 31, 2, 30, 2, 2.03071),
    Sketcher.Constraint("DistanceX", 32, 2, 31, 2, 4.467562),
    Sketcher.Constraint("DistanceX", 35, 2, 37, 2, 0.852048),
    Sketcher.Constraint("DistanceY", 38, 2, 34, 2, 0.721258),
    Sketcher.Constraint("DistanceY", 40, 2, 39, 2, 0.261659),
    Sketcher.Constraint("DistanceY", 50, 2, 48, 2, 0.296349),
    Sketcher.Constraint("DistanceY", 51, 2, 52, 2, 0.296349),
    Sketcher.Constraint("DistanceY", 53, 2, 46, 2, 1.089771),
])
pad10 = body.newObject("PartDesign::Pad", "Pad009")
pad10.Profile = sketch10
pad10.setExpression("Length", "Params.pad10_length")

# Sketch on XZ plane
sketch11 = body.newObject("Sketcher::SketchObject", "Sketch010")
sketch11.AttachmentSupport = (doc.getObject("XZ_Plane"), [""])
sketch11.MapMode = "FlatFace"
add_polygon(sketch11, [(-42.736944, 4.677232), (-36.958933, 4.677232), (-36.958933, 10.769363), (-27.051412, 10.769363), (-26.746806, 4.880303), (0, 4.677232), (0, 11.37198), (1.060647, 11.363928), (9.754373, 11.297922), (10.965205, 11.288729), (11.168908, 4.677232), (15.082974, 4.677232), (16.442699, 6.490197), (19.494824, 6.490197), (19.896092, 7.618463), (17.288899, 7.618463), (19.494824, 10.559695), (19.494824, 19.900965), (14.554233, 24.841554), (15.726699, 26.404841), (16.773574, 26.74414), (17.537901, 27.763242), (14.715445, 27.068948), (14.715445, 26.359562), (13.875835, 25.519951), (12.996548, 26.399238), (-10.717479, 27.7076), (-10.616186, 29.543532), (-12.02497, 29.202009), (-13.264674, 27.848135), (-16.448757, 28.023809), (-29.039163, 20.307107), (-41.020356, 18.276397), (-45.487918, 14.418046), (-45.487918, 9.54434), (-44.520099, 7.832044), (-45.205101, 7.832044), (-45.038056, 7.536502), (-44.353053, 7.536502), (-44.112431, 7.110786), (-44.863578, 7.110786), (-44.715684, 6.849127), (-43.964537, 6.849127), (-43.851823, 6.649709), (-44.564746, 6.649709), (-44.411612, 6.37878), (-43.698689, 6.37878), (-43.352902, 5.767002), (-44.052463, 5.767002), (-43.873941, 5.451155), (-43.174379, 5.451155), (-43.698689, 5.154807), (-43.513101, 4.826459), (-42.988792, 5.122808)])  # lines 0-53
sketch11.addConstraint([
    Sketcher.Constraint("Horizontal", 0),
    Sketcher.Constraint("Vertical", 1),
    Sketcher.Constraint("Horizontal", 2),
    Sketcher.Constraint("Vertical", 5),
    Sketcher.Constraint("Horizontal", 10),
    Sketcher.Constraint("Horizontal", 12),
    Sketcher.Constraint("Horizontal", 14),
    Sketcher.Constraint("Vertical", 16),
    Sketcher.Constraint("Vertical", 22),
    Sketcher.Constraint("Vertical", 33),
    Sketcher.Constraint("Horizontal", 35),
    Sketcher.Constraint("Horizontal", 37),
    Sketcher.Constraint("Horizontal", 39),
    Sketcher.Constraint("Horizontal", 41),
    Sketcher.Constraint("Horizontal", 43),
    Sketcher.Constraint("Horizontal", 45),
    Sketcher.Constraint("Horizontal", 47),
    Sketcher.Constraint("Horizontal", 49),
    Sketcher.Constraint("PointOnObject", 4, 2, -2),
    Sketcher.Constraint("DistanceY", -1, 1, 7, 2, Q("0.4448001 in")),
    Sketcher.Constraint("Distance", 24, 1.243499),
    Sketcher.Constraint("DistanceX", 0, 1, 0, 2, 5.778012),
    Sketcher.Constraint("DistanceX", 2, 1, 2, 2, 9.907521),
    Sketcher.Constraint("DistanceX", 47, 2, 47, 1, 0.699562),
    Sketcher.Constraint("DistanceX", 49, 1, 49, 2, 0.699562),
    Sketcher.Constraint("DistanceY", 1, 1, 1, 2, 6.092132),
    Sketcher.Constraint("DistanceY", 5, 1, 5, 2, 6.694749),
    Sketcher.Constraint("DistanceY", 16, 1, 16, 2, 9.34127),
    Sketcher.Constraint("DistanceX", -1, 1, 11, 2, 16.442699),
    Sketcher.Constraint("DistanceX", -1, 1, 14, 2, 17.288899),
    Sketcher.Constraint("DistanceX", -1, 1, 18, 2, 15.726699),
    Sketcher.Constraint("DistanceX", -1, 1, 20, 2, 17.537901),
    Sketcher.Constraint("DistanceY", -1, 1, 25, 2, 27.7076),
    Sketcher.Constraint("DistanceX", 34, 2, -1, 1, 44.520099),
    Sketcher.Constraint("DistanceX", 35, 2, -1, 1, 45.205101),
    Sketcher.Constraint("DistanceY", -1, 1, 36, 2, 7.536502),
    Sketcher.Constraint("DistanceX", 46, 2, -1, 1, 43.352902),
    Sketcher.Constraint("DistanceX", 51, 2, -1, 1, 43.513101),
    Sketcher.Constraint("DistanceY", 8, 2, 6, 2, 0.075199),
    Sketcher.Constraint("DistanceX", 7, 2, 10, 2, 5.328602),
    Sketcher.Constraint("DistanceY", 13, 2, 16, 2, 12.282501),
    Sketcher.Constraint("DistanceY", 18, 2, 19, 2, 0.339299),
    Sketcher.Constraint("DistanceY", 19, 2, 20, 2, 1.019102),
    Sketcher.Constraint("DistanceY", 29, 2, 27, 2, 1.178199),
    Sketcher.Constraint("DistanceY", 34, 2, 32, 2, 6.586002),
    Sketcher.Constraint("DistanceY", 52, 2, 50, 2, 0.031999),
    Sketcher.Constraint("Distance", 15, 3.67654),
    Sketcher.Constraint("Distance", 17, 6.98705),
    Sketcher.Constraint("Distance", 18, 1.954109),
    Sketcher.Constraint("Distance", 27, 1.44959),
    Sketcher.Constraint("Distance", 31, 12.152068),
    Sketcher.Constraint("Distance", 32, 5.903049),
    Sketcher.Constraint("Distance", 42, 0.229068),
    Sketcher.Constraint("Distance", 44, 0.311212),
    Sketcher.Constraint("DistanceX", 10, 1, 10, 2, 3.914066),
    Sketcher.Constraint("DistanceX", 12, 1, 12, 2, 3.052125),
    Sketcher.Constraint("DistanceX", 14, 2, 14, 1, 2.607193),
    Sketcher.Constraint("DistanceX", 37, 1, 37, 2, 0.685003),
    Sketcher.Constraint("DistanceX", 39, 2, 39, 1, 0.751147),
    Sketcher.Constraint("DistanceX", 41, 1, 41, 2, 0.751147),
    Sketcher.Constraint("DistanceX", 43, 2, 43, 1, 0.712924),
    Sketcher.Constraint("DistanceX", 45, 1, 45, 2, 0.712924),
    Sketcher.Constraint("DistanceY", 22, 2, 22, 1, 0.709387),
    Sketcher.Constraint("DistanceY", 33, 2, 33, 1, 4.873706),
    Sketcher.Constraint("DistanceY", -1, 1, 0, 2, 4.677232),
    Sketcher.Constraint("DistanceX", 2, 2, -1, 1, 27.051412),
    Sketcher.Constraint("DistanceY", -1, 1, 4, 2, 4.677232),
    Sketcher.Constraint("DistanceY", -1, 1, 8, 2, 11.288729),
    Sketcher.Constraint("DistanceX", -1, 1, 9, 2, 11.168908),
    Sketcher.Constraint("DistanceY", -1, 1, 9, 2, 4.677232),
    Sketcher.Constraint("DistanceY", -1, 1, 18, 2, 26.404841),
    Sketcher.Constraint("DistanceY", -1, 1, 21, 2, 27.068948),
    Sketcher.Constraint("DistanceY", -1, 1, 23, 2, 25.519951),
    Sketcher.Constraint("DistanceY", -1, 1, 24, 2, 26.399238),
    Sketcher.Constraint("DistanceX", 25, 2, -1, 1, 10.717479),
    Sketcher.Constraint("DistanceX", 27, 2, -1, 1, 12.02497),
    Sketcher.Constraint("DistanceY", -1, 1, 27, 2, 29.202009),
    Sketcher.Constraint("DistanceY", -1, 1, 33, 2, 9.54434),
    Sketcher.Constraint("DistanceX", 38, 2, -1, 1, 44.112431),
    Sketcher.Constraint("DistanceY", -1, 1, 42, 2, 6.649709),
    Sketcher.Constraint("DistanceY", -1, 1, 44, 2, 6.37878),
    Sketcher.Constraint("DistanceX", 45, 2, -1, 1, 43.698689),
    Sketcher.Constraint("DistanceX", 48, 2, -1, 1, 43.873941),
    Sketcher.Constraint("DistanceX", 50, 2, -1, 1, 43.698689),
    Sketcher.Constraint("DistanceY", -1, 1, 51, 2, 4.826459),
    Sketcher.Constraint("DistanceX", 52, 2, -1, 1, 42.988792),
    Sketcher.Constraint("DistanceY", 3, 2, 2, 2, 5.889061),
    Sketcher.Constraint("DistanceX", 2, 2, 6, 2, 28.112059),
    Sketcher.Constraint("DistanceX", 3, 2, 7, 2, 36.501178),
    Sketcher.Constraint("DistanceX", 8, 2, 10, 2, 4.117769),
    Sketcher.Constraint("DistanceY", 11, 2, 8, 2, 4.798532),
    Sketcher.Constraint("DistanceY", 10, 2, 13, 2, 2.941231),
    Sketcher.Constraint("DistanceX", 17, 2, 19, 2, 2.219342),
    Sketcher.Constraint("DistanceX", 21, 2, 19, 2, 2.05813),
    Sketcher.Constraint("DistanceX", 23, 2, 22, 2, 0.83961),
    Sketcher.Constraint("DistanceY", 25, 2, 26, 2, 1.835932),
    Sketcher.Constraint("DistanceX", 28, 2, 6, 2, 14.325321),
    Sketcher.Constraint("DistanceX", 29, 2, 26, 2, 5.832571),
    Sketcher.Constraint("DistanceX", 30, 2, 2, 2, 1.987752),
    Sketcher.Constraint("DistanceY", 30, 2, 28, 2, 7.541028),
    Sketcher.Constraint("DistanceY", 31, 2, 30, 2, 2.03071),
    Sketcher.Constraint("DistanceX", 32, 2, 31, 2, 4.467562),
    Sketcher.Constraint("DistanceX", 35, 2, 37, 2, 0.852048),
    Sketcher.Constraint("DistanceY", 38, 2, 34, 2, 0.721258),
    Sketcher.Constraint("DistanceY", 40, 2, 39, 2, 0.261659),
    Sketcher.Constraint("DistanceY", 50, 2, 48, 2, 0.296349),
    Sketcher.Constraint("DistanceY", 51, 2, 52, 2, 0.296349),
    Sketcher.Constraint("DistanceY", 53, 2, 46, 2, 1.089771),
])
pad11 = body.newObject("PartDesign::Pad", "Pad010")
pad11.Profile = sketch11
pad11.setExpression("Length", "Params.pad11_length")

doc.recompute()
